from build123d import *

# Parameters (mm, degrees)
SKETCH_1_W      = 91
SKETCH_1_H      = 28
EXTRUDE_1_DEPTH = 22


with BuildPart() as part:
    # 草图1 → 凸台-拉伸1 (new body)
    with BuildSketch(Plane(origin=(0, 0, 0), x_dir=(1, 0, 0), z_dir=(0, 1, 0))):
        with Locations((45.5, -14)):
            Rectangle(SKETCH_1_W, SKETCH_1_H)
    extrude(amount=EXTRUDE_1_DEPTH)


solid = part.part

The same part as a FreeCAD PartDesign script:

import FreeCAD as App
import Part
import Sketcher

V = App.Vector
Q = App.Units.Quantity

doc = App.newDocument("Part")
body = doc.addObject("PartDesign::Body", "Body")

sketch1 = body.newObject("Sketcher::SketchObject", "Sketch")
sketch1.AttachmentSupport = (doc.getObject("XZ_Plane"), [""])
sketch1.MapMode = "FlatFace"
sketch1.addGeometry([
    Part.LineSegment(V(0, 0, 0), V(0, 28, 0)),
    Part.LineSegment(V(0, 28, 0), V(91, 28, 0)),
    Part.LineSegment(V(91, 28, 0), V(91, 0, 0)),
    Part.LineSegment(V(91, 0, 0), V(0, 0, 0)),
], False)
sketch1.addConstraint([
    Sketcher.Constraint("Coincident", 0, 2, 1, 1),
    Sketcher.Constraint("Coincident", 1, 2, 2, 1),
    Sketcher.Constraint("Coincident", 2, 2, 3, 1),
    Sketcher.Constraint("Coincident", 3, 2, 0, 1),
    Sketcher.Constraint("Vertical", 0),
    Sketcher.Constraint("Horizontal", 1),
    Sketcher.Constraint("Vertical", 2),
    Sketcher.Constraint("Horizontal", 3),
    Sketcher.Constraint("Coincident", 3, 2, -1, 1),
    Sketcher.Constraint("DistanceX", 1, 1, 1, 2, Q("91 mm")),
    Sketcher.Constraint("DistanceY", 0, 1, 0, 2, Q("28 mm")),
])
pad1 = body.newObject("PartDesign::Pad", "Pad")
pad1.Profile = sketch1
pad1.Length = 22
pad1.Reversed = True

doc.recompute()
